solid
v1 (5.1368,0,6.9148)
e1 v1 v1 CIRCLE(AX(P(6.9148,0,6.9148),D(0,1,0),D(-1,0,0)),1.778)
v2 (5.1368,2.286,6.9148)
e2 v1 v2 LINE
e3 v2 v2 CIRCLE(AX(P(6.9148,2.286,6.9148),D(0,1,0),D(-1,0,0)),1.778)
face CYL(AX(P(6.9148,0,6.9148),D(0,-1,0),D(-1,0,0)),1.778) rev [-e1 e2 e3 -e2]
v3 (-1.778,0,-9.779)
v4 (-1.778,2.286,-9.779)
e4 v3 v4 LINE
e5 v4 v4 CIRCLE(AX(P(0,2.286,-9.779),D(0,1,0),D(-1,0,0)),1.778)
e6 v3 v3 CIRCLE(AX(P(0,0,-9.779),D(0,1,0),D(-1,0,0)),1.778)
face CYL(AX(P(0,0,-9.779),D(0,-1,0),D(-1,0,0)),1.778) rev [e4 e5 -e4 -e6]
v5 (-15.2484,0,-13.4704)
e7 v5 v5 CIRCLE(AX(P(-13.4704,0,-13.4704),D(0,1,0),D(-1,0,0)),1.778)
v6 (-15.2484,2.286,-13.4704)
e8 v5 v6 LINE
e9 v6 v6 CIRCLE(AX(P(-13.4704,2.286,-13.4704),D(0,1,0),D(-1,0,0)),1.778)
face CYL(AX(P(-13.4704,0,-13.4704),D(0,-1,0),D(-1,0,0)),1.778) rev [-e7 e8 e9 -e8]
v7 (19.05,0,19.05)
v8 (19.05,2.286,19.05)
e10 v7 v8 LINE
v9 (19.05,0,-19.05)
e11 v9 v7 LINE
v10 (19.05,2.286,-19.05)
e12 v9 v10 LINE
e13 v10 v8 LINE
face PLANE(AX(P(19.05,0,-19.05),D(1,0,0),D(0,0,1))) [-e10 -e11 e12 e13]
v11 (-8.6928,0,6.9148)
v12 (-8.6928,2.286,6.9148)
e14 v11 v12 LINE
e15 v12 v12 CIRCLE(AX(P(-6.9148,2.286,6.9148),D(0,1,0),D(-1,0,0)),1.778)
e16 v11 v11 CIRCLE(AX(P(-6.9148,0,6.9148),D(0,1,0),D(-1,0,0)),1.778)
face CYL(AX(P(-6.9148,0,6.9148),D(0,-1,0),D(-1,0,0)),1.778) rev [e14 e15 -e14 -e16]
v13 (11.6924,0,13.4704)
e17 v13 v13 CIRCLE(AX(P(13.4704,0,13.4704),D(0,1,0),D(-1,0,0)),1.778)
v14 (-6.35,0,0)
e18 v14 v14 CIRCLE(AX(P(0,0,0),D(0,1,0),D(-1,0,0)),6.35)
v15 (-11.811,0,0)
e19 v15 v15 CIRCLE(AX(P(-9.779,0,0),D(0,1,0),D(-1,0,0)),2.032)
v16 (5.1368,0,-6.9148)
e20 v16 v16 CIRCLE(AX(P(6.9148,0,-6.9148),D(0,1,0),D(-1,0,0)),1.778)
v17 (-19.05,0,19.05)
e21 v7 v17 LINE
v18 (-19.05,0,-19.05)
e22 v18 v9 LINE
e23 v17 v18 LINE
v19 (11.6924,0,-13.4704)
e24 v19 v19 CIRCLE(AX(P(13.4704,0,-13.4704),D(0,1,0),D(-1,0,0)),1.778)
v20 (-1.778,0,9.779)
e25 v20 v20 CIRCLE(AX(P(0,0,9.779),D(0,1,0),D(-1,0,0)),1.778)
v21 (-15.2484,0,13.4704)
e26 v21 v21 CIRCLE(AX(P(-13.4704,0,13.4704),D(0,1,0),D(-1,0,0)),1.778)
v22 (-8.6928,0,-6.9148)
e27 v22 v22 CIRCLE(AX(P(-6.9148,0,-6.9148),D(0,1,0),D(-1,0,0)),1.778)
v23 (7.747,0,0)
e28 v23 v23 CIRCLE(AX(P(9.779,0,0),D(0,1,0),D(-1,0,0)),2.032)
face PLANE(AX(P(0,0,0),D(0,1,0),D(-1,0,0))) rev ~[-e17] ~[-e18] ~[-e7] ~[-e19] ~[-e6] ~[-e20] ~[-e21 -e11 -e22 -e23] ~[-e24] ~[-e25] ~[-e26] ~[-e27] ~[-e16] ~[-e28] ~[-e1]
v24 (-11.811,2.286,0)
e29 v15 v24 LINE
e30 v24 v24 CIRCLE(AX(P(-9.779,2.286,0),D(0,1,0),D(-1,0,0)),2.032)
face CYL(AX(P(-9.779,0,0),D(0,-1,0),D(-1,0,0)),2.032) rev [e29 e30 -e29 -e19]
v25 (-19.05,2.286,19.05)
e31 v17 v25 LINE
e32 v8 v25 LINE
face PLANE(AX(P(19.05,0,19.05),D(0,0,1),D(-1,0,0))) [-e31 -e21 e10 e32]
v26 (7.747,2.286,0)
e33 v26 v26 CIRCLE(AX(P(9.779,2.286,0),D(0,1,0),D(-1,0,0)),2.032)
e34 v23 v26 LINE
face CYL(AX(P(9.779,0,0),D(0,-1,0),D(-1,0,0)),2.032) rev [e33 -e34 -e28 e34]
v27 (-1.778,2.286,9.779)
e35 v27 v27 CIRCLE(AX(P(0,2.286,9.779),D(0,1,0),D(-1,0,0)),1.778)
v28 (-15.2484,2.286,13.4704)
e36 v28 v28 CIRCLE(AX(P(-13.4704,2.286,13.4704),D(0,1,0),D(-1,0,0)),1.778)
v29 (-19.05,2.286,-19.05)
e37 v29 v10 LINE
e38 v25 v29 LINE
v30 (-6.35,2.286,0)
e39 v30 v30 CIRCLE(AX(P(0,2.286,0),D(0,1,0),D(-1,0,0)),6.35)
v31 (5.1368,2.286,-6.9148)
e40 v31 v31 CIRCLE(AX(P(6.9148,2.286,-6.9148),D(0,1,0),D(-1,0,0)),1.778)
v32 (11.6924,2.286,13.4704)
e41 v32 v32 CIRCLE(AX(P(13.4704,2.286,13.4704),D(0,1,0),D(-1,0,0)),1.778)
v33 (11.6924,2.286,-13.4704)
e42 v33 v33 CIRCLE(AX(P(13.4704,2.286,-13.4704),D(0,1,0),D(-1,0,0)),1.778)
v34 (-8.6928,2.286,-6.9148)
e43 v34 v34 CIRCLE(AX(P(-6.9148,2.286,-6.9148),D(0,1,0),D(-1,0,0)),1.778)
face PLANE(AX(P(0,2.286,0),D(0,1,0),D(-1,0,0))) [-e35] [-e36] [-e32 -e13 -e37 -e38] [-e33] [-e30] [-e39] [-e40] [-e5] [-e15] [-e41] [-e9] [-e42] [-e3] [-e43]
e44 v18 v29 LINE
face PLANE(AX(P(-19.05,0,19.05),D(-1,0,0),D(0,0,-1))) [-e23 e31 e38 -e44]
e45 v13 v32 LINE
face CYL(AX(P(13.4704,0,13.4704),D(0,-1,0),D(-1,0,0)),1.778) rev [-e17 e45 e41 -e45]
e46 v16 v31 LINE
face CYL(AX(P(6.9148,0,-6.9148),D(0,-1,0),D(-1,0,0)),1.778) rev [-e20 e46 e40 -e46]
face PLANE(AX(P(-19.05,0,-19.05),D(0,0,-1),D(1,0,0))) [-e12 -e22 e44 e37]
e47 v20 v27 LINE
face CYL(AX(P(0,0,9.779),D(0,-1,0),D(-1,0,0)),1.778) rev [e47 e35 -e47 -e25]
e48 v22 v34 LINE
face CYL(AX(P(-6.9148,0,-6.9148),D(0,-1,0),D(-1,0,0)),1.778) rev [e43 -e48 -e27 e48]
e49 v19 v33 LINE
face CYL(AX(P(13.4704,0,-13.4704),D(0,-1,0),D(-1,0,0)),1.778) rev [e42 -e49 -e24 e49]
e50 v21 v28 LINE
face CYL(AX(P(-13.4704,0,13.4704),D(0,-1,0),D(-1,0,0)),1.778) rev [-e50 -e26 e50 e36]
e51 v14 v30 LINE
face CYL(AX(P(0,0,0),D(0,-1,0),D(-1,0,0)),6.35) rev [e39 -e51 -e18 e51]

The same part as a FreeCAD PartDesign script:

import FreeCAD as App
import Part
import Sketcher

V = App.Vector
Q = App.Units.Quantity

doc = App.newDocument("Part")
params = doc.addObject("Spreadsheet::Sheet", "Params")
for row, (alias, value) in enumerate([
    ("sketch1_diameter", "0.5 in"),
    ("sketch1_diameter2", "0.14 in"),
    ("sketch1_diameter3", "0.16 in"),
    ("sketch1_width", "1.5 in"),
    ("pad1_length", "0.09 in"),
], start=1):
    params.set(f"A{row}", alias)
    params.set(f"B{row}", "=" + value)
    params.setAlias(f"B{row}", alias)

body = doc.addObject("PartDesign::Body", "Body")

# Sketch on XZ plane
sketch1 = doc.addObject("Sketcher::SketchObject", "Sketch")
body.addObject(sketch1)
sketch1.AttachmentSupport = (doc.XZ_Plane, [""])
sketch1.MapMode = "FlatFace"
sketch1.addGeometry([
    Part.LineSegment(V(-19.1, 19.1, 0), V(19.1, 19.1, 0)),  # 0
    Part.LineSegment(V(19.1, 19.1, 0), V(19.1, -19.1, 0)),  # 1
    Part.LineSegment(V(19.1, -19.1, 0), V(-19.1, -19.1, 0)),  # 2
    Part.LineSegment(V(-19.1, -19.1, 0), V(-19.1, 19.1, 0)),  # 3
    Part.Circle(V(13.5, -13.5, 0), V(0, 0, 1), 1.8),  # 4
    Part.Circle(V(6.9, -6.9, 0), V(0, 0, 1), 1.8),  # 5
    Part.Circle(V(0, -9.8, 0), V(0, 0, 1), 1.8),  # 6
    Part.Circle(V(-13.5, -13.5, 0), V(0, 0, 1), 1.8),  # 7
    Part.Circle(V(-6.9, -6.9, 0), V(0, 0, 1), 1.8),  # 8
    Part.Circle(V(9.8, 0, 0), V(0, 0, 1), 2),  # 9
    Part.Circle(V(6.9, 6.9, 0), V(0, 0, 1), 1.8),  # 10
    Part.Circle(V(13.5, 13.5, 0), V(0, 0, 1), 1.8),  # 11
    Part.Circle(V(0, 0, 0), V(0, 0, 1), 6.3),  # 12
    Part.Circle(V(-6.9, 6.9, 0), V(0, 0, 1), 1.8),  # 13
    Part.Circle(V(-9.8, 0, 0), V(0, 0, 1), 2),  # 14
    Part.Circle(V(0, 9.8, 0), V(0, 0, 1), 1.8),  # 15
    Part.Circle(V(-13.5, 13.5, 0), V(0, 0, 1), 1.8),  # 16
], False)
sketch1.addConstraint([
    Sketcher.Constraint("Coincident", 0, 2, 1, 1),
    Sketcher.Constraint("Coincident", 1, 2, 2, 1),
    Sketcher.Constraint("Coincident", 2, 2, 3, 1),
    Sketcher.Constraint("Coincident", 3, 2, 0, 1),
    Sketcher.Constraint("Horizontal", 0),
    Sketcher.Constraint("Vertical", 1),
    Sketcher.Constraint("Horizontal", 2),
    Sketcher.Constraint("Vertical", 3),
    Sketcher.Constraint("Coincident", 12, 3, -1, 1),
    Sketcher.Constraint("Equal", 4, 5),
    Sketcher.Constraint("Equal", 5, 6),
    Sketcher.Constraint("Equal", 6, 7),
    Sketcher.Constraint("Equal", 7, 8),
    Sketcher.Constraint("Equal", 8, 10),
    Sketcher.Constraint("Equal", 10, 11),
    Sketcher.Constraint("Equal", 11, 13),
    Sketcher.Constraint("Equal", 9, 14),
    Sketcher.Constraint("Equal", 13, 15),
    Sketcher.Constraint("Equal", 15, 16),
    Sketcher.Constraint("Symmetric", 8, 3, 10, 3, -1, 1),
    Sketcher.Constraint("Symmetric", 7, 3, 11, 3, -1, 1),
    Sketcher.Constraint("Symmetric", 5, 3, 13, 3, -1, 1),
    Sketcher.Constraint("Symmetric", 9, 3, 14, 3, -1, 1),
    Sketcher.Constraint("Symmetric", 6, 3, 15, 3, -1, 1),
    Sketcher.Constraint("Symmetric", 4, 3, 16, 3, -1, 1),
    Sketcher.Constraint("Symmetric", 0, 2, 2, 2, -1, 1),
    Sketcher.Constraint("Symmetric", 4, 3, 7, 3, -2),
    Sketcher.Constraint("Symmetric", 5, 3, 8, 3, -2),
    Sketcher.Constraint("PointOnObject", 6, 3, -2),
    Sketcher.Constraint("PointOnObject", 9, 3, -1),
    Sketcher.Constraint("Equal", 2, 1),
    Sketcher.Constraint("Diameter", 12, Q("0.5 in")),
    Sketcher.Constraint("Diameter", 4, Q("0.14 in")),
    Sketcher.Constraint("Diameter", 9, Q("0.16 in")),
    Sketcher.Constraint("DistanceX", 0, 1, 0, 2, Q("1.5 in")),
    Sketcher.Constraint("DistanceY", 6, 3, -1, 1, Q("0.385 in")),
    Sketcher.Constraint("DistanceX", -1, 1, 9, 3, Q("0.385 in")),
    Sketcher.Constraint("DistanceX", 5, 3, 4, 3, Q("0.2581 in")),
    Sketcher.Constraint("DistanceY", 4, 3, 5, 3, Q("0.2581 in")),
    Sketcher.Constraint("DistanceX", -1, 1, 4, 3, Q("13.4704 mm")),
    Sketcher.Constraint("DistanceY", 4, 3, -1, 1, Q("13.4704 mm")),
])
sketch1.setExpression("Constraints[31]", "Params.sketch1_diameter")
sketch1.setExpression("Constraints[32]", "Params.sketch1_diameter2")
sketch1.setExpression("Constraints[33]", "Params.sketch1_diameter3")
sketch1.setExpression("Constraints[34]", "Params.sketch1_width")
pad1 = doc.addObject("PartDesign::Pad", "Pad")
body.addObject(pad1)
pad1.Profile = sketch1
pad1.setExpression("Length", "Params.pad1_length")
pad1.Reversed = True

doc.recompute()
